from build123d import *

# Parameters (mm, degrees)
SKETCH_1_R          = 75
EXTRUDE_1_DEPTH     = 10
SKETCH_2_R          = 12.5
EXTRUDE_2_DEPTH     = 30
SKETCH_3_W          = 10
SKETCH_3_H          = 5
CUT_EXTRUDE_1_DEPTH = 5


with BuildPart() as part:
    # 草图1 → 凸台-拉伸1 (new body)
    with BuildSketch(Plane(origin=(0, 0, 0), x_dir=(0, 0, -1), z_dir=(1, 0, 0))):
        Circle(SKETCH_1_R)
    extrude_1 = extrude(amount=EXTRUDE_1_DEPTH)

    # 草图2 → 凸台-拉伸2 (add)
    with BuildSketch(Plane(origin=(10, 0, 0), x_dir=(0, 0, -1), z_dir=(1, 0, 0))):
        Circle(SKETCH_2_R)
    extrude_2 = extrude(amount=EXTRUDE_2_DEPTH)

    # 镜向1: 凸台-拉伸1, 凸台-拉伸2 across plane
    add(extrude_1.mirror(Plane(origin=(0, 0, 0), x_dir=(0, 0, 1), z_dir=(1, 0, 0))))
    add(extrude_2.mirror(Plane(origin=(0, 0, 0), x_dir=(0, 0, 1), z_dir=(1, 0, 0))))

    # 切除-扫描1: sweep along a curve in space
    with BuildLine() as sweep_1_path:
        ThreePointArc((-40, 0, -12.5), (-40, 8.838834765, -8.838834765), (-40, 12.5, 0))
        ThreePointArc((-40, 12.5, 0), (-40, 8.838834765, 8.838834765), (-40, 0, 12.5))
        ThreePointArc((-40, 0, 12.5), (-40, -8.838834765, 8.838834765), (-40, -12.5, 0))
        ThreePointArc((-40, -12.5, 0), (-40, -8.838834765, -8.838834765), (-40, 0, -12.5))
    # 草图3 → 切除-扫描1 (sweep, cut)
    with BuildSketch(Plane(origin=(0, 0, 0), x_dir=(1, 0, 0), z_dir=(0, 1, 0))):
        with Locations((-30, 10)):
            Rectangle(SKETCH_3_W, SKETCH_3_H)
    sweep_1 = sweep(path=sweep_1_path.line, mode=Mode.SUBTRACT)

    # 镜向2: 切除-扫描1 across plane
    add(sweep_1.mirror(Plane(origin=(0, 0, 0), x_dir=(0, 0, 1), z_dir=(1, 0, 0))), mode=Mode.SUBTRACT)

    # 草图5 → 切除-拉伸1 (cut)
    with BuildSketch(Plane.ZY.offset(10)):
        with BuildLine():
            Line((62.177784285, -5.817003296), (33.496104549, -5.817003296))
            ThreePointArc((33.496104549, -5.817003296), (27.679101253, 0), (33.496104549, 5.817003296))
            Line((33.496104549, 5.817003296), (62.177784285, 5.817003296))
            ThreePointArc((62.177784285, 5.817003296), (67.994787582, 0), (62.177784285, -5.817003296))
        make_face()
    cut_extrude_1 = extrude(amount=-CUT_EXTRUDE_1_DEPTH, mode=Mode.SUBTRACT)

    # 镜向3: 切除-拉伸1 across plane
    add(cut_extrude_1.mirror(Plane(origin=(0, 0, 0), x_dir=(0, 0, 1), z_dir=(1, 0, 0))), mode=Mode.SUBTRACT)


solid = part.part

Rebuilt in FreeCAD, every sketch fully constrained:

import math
import FreeCAD as App
import Part
import Sketcher

V = App.Vector


def add_polygon(sketch, points):
    """Adds a closed chain of lines whose ends are joined by coincident constraints."""
    first, n = sketch.GeometryCount, len(points)
    for a, b in zip(points, points[1:] + points[:1]):
        sketch.addGeometry(Part.LineSegment(App.Vector(*a, 0), App.Vector(*b, 0)), False)
    for i in range(n):
        sketch.addConstraint(Sketcher.Constraint("Coincident", first + i, 2, first + (i + 1) % n, 1))

doc = App.newDocument("Part")
body = doc.addObject("PartDesign::Body", "Body")

# Sketch on YZ plane
sketch1 = body.newObject("Sketcher::SketchObject", "Sketch")
sketch1.AttachmentSupport = (doc.getObject("YZ_Plane"), [""])
sketch1.MapMode = "FlatFace"
sketch1.addGeometry(Part.Circle(V(0, 0, 0), V(0, 0, 1), 75), False)
sketch1.addConstraint([
    Sketcher.Constraint("Coincident", 0, 3, -1, 1),
    Sketcher.Constraint("Diameter", 0, 150.0),
])
pad1 = body.newObject("PartDesign::Pad", "Pad")
pad1.Profile = sketch1
pad1.Length = 10

# Sketch on YZ plane
sketch2 = body.newObject("Sketcher::SketchObject", "Sketch001")
sketch2.AttachmentSupport = (doc.getObject("YZ_Plane"), [""])
sketch2.MapMode = "FlatFace"
sketch2.AttachmentOffset = App.Placement(V(0, 0, 10), App.Rotation())
sketch2.addGeometry(Part.Circle(V(0, 0, 0), V(0, 0, 1), 12.5), False)
sketch2.addConstraint([
    Sketcher.Constraint("Coincident", 0, 3, -1, 1),
    Sketcher.Constraint("Diameter", 0, 25.0),
])
pad2 = body.newObject("PartDesign::Pad", "Pad001")
pad2.Profile = sketch2
pad2.Length = 30
doc.recompute()

mirrored = body.newObject("PartDesign::Mirrored", "Mirrored")
mirrored.Originals = [pad1, pad2]
mirrored.MirrorPlane = (doc.getObject("YZ_Plane"), [""])
body.Tip = mirrored

# Sketch on XZ plane
sketch3 = body.newObject("Sketcher::SketchObject", "Sketch002")
sketch3.AttachmentSupport = (doc.getObject("XZ_Plane"), [""])
sketch3.MapMode = "FlatFace"
add_polygon(sketch3, [(-35, -12.5), (-35, -7.5), (-25, -7.5), (-25, -12.5)])  # lines 0-3
sketch3.addConstraint([
    Sketcher.Constraint("Vertical", 0),
    Sketcher.Constraint("Horizontal", 1),
    Sketcher.Constraint("Vertical", 2),
    Sketcher.Constraint("Horizontal", 3),
    Sketcher.Constraint("DistanceX", 1, 1, 1, 2, 10.0),
    Sketcher.Constraint("DistanceY", 0, 1, 0, 2, 5.0),
    Sketcher.Constraint("DistanceX", 0, 2, -1, 1, 35.0),
    Sketcher.Constraint("DistanceY", 0, 2, -1, 1, 7.5),
])

# Sketch on YZ plane
sketch4 = body.newObject("Sketcher::SketchObject", "Sketch003")
sketch4.AttachmentSupport = (doc.getObject("YZ_Plane"), [""])
sketch4.MapMode = "FlatFace"
sketch4.AttachmentOffset = App.Placement(V(0, 0, -40), App.Rotation())
sketch4.addGeometry([
    Part.ArcOfCircle(Part.Circle(V(0, 0, 0), V(0, 0, 1), 12.5), math.radians(-90), math.radians(0)),
    Part.ArcOfCircle(Part.Circle(V(0, 0, 0), V(0, 0, 1), 12.5), math.radians(0), math.radians(90)),
    Part.ArcOfCircle(Part.Circle(V(0, 0, 0), V(0, 0, 1), 12.5), math.radians(90), math.radians(180)),
    Part.ArcOfCircle(Part.Circle(V(0, 0, 0), V(0, 0, 1), 12.5), math.radians(180), math.radians(270)),
], False)
sketch4.addConstraint([
    Sketcher.Constraint("Tangent", 0, 2, 1, 1),
    Sketcher.Constraint("Tangent", 1, 2, 2, 1),
    Sketcher.Constraint("Tangent", 2, 2, 3, 1),
    Sketcher.Constraint("Tangent", 3, 2, 0, 1),
    Sketcher.Constraint("Coincident", 0, 3, -1, 1),
    Sketcher.Constraint("Equal", 0, 1),
    Sketcher.Constraint("PointOnObject", 0, 2, -1),
    Sketcher.Constraint("PointOnObject", 1, 2, -2),
    Sketcher.Constraint("PointOnObject", 2, 2, -1),
    Sketcher.Constraint("PointOnObject", 3, 2, -2),
    Sketcher.Constraint("Radius", 0, 12.5),
])
doc.recompute()

subtractivepipe = body.newObject("PartDesign::SubtractivePipe", "SubtractivePipe")
subtractivepipe.Profile = sketch3
subtractivepipe.Spine = (sketch4, ["Edge1", "Edge2", "Edge3", "Edge4"])
doc.recompute()

mirrored2 = body.newObject("PartDesign::Mirrored", "Mirrored001")
mirrored2.Originals = [subtractivepipe]
mirrored2.MirrorPlane = (doc.getObject("YZ_Plane"), [""])
body.Tip = mirrored2

# Sketch on YZ plane
sketch5 = body.newObject("Sketcher::SketchObject", "Sketch004")
sketch5.AttachmentSupport = (doc.getObject("YZ_Plane"), [""])
sketch5.MapMode = "FlatFace"
sketch5.AttachmentOffset = App.Placement(V(0, 0, -10), App.Rotation())
sketch5.addGeometry([
    Part.LineSegment(V(-5.817003, 33.496105, 0), V(-5.817003, 62.177784, 0)),
    Part.ArcOfCircle(Part.Circle(V(0, 62.177784, 0), V(0, 0, 1), 5.817003), math.radians(0), math.radians(180)),
    Part.LineSegment(V(5.817003, 62.177784, 0), V(5.817003, 33.496105, 0)),
    Part.ArcOfCircle(Part.Circle(V(0, 33.496105, 0), V(0, 0, 1), 5.817003), math.radians(180), math.radians(360)),
], False)
sketch5.addConstraint([
    Sketcher.Constraint("Tangent", 0, 2, 1, 2),
    Sketcher.Constraint("Tangent", 1, 1, 2, 1),
    Sketcher.Constraint("Tangent", 2, 2, 3, 2),
    Sketcher.Constraint("Tangent", 3, 1, 0, 1),
    Sketcher.Constraint("Vertical", 0),
    Sketcher.Constraint("Vertical", 2),
    Sketcher.Constraint("PointOnObject", 1, 3, -2),
    Sketcher.Constraint("Radius", 1, 5.817003),
    Sketcher.Constraint("DistanceY", 0, 1, 0, 2, 28.68168),
    Sketcher.Constraint("DistanceY", -1, 1, 1, 3, 62.177784),
])
pocket1 = body.newObject("PartDesign::Pocket", "Pocket")
pocket1.Profile = sketch5
pocket1.Length = 5
pocket1.Reversed = True
doc.recompute()

mirrored3 = body.newObject("PartDesign::Mirrored", "Mirrored002")
mirrored3.Originals = [pocket1]
mirrored3.MirrorPlane = (doc.getObject("YZ_Plane"), [""])
body.Tip = mirrored3

doc.recompute()
